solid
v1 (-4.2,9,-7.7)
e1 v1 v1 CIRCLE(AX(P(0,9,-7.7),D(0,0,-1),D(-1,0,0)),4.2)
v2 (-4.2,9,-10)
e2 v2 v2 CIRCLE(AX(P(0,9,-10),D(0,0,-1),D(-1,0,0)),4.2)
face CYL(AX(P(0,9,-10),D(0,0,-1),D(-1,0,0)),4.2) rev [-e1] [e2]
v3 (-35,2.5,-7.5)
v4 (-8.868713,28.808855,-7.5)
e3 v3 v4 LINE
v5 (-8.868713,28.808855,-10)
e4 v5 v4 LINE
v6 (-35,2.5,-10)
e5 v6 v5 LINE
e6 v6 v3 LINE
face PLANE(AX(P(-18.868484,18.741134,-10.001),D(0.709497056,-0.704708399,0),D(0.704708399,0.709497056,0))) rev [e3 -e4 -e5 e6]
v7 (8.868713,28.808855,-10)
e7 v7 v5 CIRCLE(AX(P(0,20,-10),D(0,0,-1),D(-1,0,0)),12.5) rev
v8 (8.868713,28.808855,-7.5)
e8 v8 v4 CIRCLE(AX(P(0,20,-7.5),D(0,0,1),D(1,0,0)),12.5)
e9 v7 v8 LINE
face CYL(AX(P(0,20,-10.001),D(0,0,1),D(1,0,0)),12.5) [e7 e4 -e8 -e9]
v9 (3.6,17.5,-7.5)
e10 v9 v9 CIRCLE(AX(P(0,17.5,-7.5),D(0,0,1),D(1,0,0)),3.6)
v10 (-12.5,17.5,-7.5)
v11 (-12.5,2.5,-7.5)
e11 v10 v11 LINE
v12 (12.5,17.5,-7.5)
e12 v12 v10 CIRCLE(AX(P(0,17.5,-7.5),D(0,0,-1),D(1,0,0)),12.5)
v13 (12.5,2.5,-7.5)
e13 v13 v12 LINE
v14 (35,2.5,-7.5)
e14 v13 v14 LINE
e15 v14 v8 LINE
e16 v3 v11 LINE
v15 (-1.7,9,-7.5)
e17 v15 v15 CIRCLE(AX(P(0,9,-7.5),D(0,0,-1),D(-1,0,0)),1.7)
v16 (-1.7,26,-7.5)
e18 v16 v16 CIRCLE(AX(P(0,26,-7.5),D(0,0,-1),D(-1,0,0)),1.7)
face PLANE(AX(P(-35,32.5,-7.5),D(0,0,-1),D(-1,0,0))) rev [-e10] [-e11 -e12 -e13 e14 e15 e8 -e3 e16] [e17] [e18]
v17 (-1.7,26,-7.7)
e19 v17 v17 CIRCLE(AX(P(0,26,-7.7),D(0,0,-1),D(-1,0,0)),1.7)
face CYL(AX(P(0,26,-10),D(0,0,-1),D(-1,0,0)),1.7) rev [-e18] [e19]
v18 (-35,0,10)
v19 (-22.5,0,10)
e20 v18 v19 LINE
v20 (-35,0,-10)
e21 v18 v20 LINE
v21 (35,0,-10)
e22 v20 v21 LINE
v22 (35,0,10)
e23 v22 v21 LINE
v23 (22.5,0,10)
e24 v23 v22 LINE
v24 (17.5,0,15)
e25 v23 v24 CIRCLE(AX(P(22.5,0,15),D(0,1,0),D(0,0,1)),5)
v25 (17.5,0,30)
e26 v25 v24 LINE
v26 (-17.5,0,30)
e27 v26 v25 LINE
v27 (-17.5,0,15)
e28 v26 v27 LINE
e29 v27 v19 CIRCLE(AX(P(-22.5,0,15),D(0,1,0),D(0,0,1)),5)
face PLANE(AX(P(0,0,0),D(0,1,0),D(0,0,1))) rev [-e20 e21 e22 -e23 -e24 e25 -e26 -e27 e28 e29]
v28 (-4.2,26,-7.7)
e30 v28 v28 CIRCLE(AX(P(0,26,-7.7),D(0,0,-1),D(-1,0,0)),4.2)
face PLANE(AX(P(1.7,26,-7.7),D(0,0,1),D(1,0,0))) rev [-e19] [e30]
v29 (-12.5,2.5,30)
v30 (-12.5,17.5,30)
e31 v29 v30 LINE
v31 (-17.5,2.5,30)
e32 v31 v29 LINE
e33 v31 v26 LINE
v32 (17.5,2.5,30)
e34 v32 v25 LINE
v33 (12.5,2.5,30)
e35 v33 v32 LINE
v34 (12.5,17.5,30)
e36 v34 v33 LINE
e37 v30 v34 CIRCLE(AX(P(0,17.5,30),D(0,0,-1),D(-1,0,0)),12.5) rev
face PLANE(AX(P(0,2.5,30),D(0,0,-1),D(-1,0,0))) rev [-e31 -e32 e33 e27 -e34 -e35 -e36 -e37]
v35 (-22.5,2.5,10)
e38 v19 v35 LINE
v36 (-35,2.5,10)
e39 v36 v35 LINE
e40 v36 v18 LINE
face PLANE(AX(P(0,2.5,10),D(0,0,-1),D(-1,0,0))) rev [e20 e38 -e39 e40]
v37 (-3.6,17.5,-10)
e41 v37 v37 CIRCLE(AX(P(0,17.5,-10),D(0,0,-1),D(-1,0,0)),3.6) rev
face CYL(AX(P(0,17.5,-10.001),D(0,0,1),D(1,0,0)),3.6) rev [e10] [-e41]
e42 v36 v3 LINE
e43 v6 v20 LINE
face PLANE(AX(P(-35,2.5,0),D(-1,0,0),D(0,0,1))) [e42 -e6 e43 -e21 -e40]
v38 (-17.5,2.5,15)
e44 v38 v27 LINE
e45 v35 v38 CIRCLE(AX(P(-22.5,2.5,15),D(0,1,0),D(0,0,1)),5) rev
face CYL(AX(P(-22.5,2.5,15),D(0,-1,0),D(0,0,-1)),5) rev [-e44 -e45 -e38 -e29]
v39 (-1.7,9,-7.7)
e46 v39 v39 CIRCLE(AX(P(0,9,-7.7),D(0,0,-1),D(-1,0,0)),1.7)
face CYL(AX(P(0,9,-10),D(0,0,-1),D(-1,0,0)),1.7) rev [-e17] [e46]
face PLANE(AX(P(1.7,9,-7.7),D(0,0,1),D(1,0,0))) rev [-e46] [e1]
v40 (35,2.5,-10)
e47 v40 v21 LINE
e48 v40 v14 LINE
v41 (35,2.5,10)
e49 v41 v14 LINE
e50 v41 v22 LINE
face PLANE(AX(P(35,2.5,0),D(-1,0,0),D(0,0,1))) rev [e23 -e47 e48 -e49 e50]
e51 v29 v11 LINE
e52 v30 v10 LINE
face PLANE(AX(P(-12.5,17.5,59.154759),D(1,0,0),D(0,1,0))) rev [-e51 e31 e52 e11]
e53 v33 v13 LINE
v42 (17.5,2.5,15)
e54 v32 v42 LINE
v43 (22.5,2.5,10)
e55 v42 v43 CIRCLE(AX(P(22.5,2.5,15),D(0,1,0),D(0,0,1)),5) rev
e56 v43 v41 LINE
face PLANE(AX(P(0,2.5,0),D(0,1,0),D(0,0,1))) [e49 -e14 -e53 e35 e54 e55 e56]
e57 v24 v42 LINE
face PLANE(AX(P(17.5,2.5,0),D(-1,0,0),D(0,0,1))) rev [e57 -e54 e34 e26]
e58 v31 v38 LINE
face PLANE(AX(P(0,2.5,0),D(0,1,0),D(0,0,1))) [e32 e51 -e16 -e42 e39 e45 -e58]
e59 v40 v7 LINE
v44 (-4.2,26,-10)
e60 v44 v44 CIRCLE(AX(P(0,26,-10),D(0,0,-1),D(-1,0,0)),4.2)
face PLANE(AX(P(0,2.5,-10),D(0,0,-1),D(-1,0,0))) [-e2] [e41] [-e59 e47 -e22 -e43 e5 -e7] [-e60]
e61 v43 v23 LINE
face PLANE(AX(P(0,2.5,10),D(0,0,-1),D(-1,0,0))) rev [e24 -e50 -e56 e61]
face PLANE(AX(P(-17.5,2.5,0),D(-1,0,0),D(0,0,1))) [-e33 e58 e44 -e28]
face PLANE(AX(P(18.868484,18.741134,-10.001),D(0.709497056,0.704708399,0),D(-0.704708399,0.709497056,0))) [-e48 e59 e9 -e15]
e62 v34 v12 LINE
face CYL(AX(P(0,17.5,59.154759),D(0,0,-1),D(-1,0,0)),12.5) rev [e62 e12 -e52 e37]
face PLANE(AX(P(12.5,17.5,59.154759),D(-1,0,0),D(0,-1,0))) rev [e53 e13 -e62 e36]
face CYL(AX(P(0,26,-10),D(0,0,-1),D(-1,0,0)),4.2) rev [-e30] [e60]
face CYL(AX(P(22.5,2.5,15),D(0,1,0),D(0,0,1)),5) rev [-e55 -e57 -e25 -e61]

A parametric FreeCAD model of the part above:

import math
import FreeCAD as App
import Part
import Sketcher
Q = App.Units.Quantity


def edges_at(feature, points):
    """Names of the edges that pass closest to the given points."""
    edges = feature.Shape.Edges
    near = lambda p: min(range(len(edges)), key=lambda i: edges[i].distToShape(Part.Vertex(*p))[0])
    return sorted({f"Edge{near(p) + 1}" for p in points})

doc = App.newDocument("Part")
body = doc.addObject("PartDesign::Body", "Body")

# Sketch on XZ plane
sketch1 = doc.addObject("Sketcher::SketchObject", "Sketch")
body.addObject(sketch1)
sketch1.AttachmentSupport = (doc.XZ_Plane, [""])
sketch1.MapMode = "FlatFace"
sketch1.addGeometry(Part.LineSegment(App.Vector(-18, 30, 0), App.Vector(18, 30, 0)), False)
sketch1.addGeometry(Part.LineSegment(App.Vector(18, 30, 0), App.Vector(18, 10, 0)), False)
sketch1.addGeometry(Part.LineSegment(App.Vector(18, 10, 0), App.Vector(35, 10, 0)), False)
sketch1.addGeometry(Part.LineSegment(App.Vector(35, 10, 0), App.Vector(35, -10, 0)), False)
sketch1.addGeometry(Part.LineSegment(App.Vector(35, -10, 0), App.Vector(-35, -10, 0)), False)
sketch1.addGeometry(Part.LineSegment(App.Vector(-35, -10, 0), App.Vector(-35, 10, 0)), False)
sketch1.addGeometry(Part.LineSegment(App.Vector(-35, 10, 0), App.Vector(-18, 10, 0)), False)
sketch1.addGeometry(Part.LineSegment(App.Vector(-18, 10, 0), App.Vector(-18, 30, 0)), False)
sketch1.addConstraint(Sketcher.Constraint("Coincident", 0, 2, 1, 1))
sketch1.addConstraint(Sketcher.Constraint("Coincident", 1, 2, 2, 1))
sketch1.addConstraint(Sketcher.Constraint("Coincident", 2, 2, 3, 1))
sketch1.addConstraint(Sketcher.Constraint("Coincident", 3, 2, 4, 1))
sketch1.addConstraint(Sketcher.Constraint("Coincident", 4, 2, 5, 1))
sketch1.addConstraint(Sketcher.Constraint("Coincident", 5, 2, 6, 1))
sketch1.addConstraint(Sketcher.Constraint("Coincident", 6, 2, 7, 1))
sketch1.addConstraint(Sketcher.Constraint("Coincident", 7, 2, 0, 1))
sketch1.addConstraint(Sketcher.Constraint("Horizontal", 0))
sketch1.addConstraint(Sketcher.Constraint("Vertical", 1))
sketch1.addConstraint(Sketcher.Constraint("Horizontal", 2))
sketch1.addConstraint(Sketcher.Constraint("Vertical", 3))
sketch1.addConstraint(Sketcher.Constraint("Horizontal", 4))
sketch1.addConstraint(Sketcher.Constraint("Vertical", 5))
sketch1.addConstraint(Sketcher.Constraint("Horizontal", 6))
sketch1.addConstraint(Sketcher.Constraint("Vertical", 7))
sketch1.addConstraint(Sketcher.Constraint("Symmetric", 2, 2, 4, 2, -1, 1))
sketch1.addConstraint(Sketcher.Constraint("Symmetric", 1, 2, 6, 2, -2))
sketch1.addConstraint(Sketcher.Constraint("Equal", 1, 3))
sketch1.addConstraint(Sketcher.Constraint("DistanceX", 0, 1, 0, 2, Q("35 mm")))
sketch1.addConstraint(Sketcher.Constraint("DistanceX", 4, 2, 4, 1, Q("70 mm")))
sketch1.addConstraint(Sketcher.Constraint("DistanceY", 1, 2, 1, 1, Q("20 mm")))
pad1 = doc.addObject("PartDesign::Pad", "Pad")
body.addObject(pad1)
pad1.Profile = sketch1
pad1.Length = 2.5
pad1.Reversed = True
doc.recompute()

fillet = doc.addObject("PartDesign::Fillet", "Fillet")
body.addObject(fillet)
fillet.Base = (pad1, edges_at(pad1, [(-17.5, 1.25, 10), (17.5, 1.25, 10)]))
fillet.Radius = 5

# Sketch on XZ plane
sketch2 = doc.addObject("Sketcher::SketchObject", "Sketch001")
body.addObject(sketch2)
sketch2.AttachmentSupport = (doc.XZ_Plane, [""])
sketch2.MapMode = "FlatFace"
sketch2.AttachmentOffset = App.Placement(App.Vector(0, 0, -2.5), App.Rotation())
sketch2.addGeometry(Part.LineSegment(App.Vector(-35, -10, 0), App.Vector(-35, -7.5, 0)), False)
sketch2.addGeometry(Part.LineSegment(App.Vector(-35, -7.5, 0), App.Vector(35, -7.5, 0)), False)
sketch2.addGeometry(Part.LineSegment(App.Vector(35, -7.5, 0), App.Vector(35, -10, 0)), False)
sketch2.addGeometry(Part.LineSegment(App.Vector(35, -10, 0), App.Vector(-35, -10, 0)), False)
sketch2.addConstraint(Sketcher.Constraint("Coincident", 0, 2, 1, 1))
sketch2.addConstraint(Sketcher.Constraint("Coincident", 1, 2, 2, 1))
sketch2.addConstraint(Sketcher.Constraint("Coincident", 2, 2, 3, 1))
sketch2.addConstraint(Sketcher.Constraint("Coincident", 3, 2, 0, 1))
sketch2.addConstraint(Sketcher.Constraint("Vertical", 0))
sketch2.addConstraint(Sketcher.Constraint("Horizontal", 1))
sketch2.addConstraint(Sketcher.Constraint("Vertical", 2))
sketch2.addConstraint(Sketcher.Constraint("Horizontal", 3))
sketch2.addConstraint(Sketcher.Constraint("DistanceX", 1, 1, 1, 2, Q("70 mm")))
sketch2.addConstraint(Sketcher.Constraint("DistanceY", 0, 1, 0, 2, Q("2.5 mm")))
sketch2.addConstraint(Sketcher.Constraint("DistanceX", 0, 2, -1, 1, Q("35 mm")))
sketch2.addConstraint(Sketcher.Constraint("DistanceY", 2, 2, -1, 1, Q("10 mm")))
pad2 = doc.addObject("PartDesign::Pad", "Pad001")
body.addObject(pad2)
pad2.Profile = sketch2
pad2.Length = 30
pad2.Reversed = True

# Sketch on XY plane
sketch3 = doc.addObject("Sketcher::SketchObject", "Sketch002")
body.addObject(sketch3)
sketch3.AttachmentSupport = (doc.XY_Plane, [""])
sketch3.MapMode = "FlatFace"
sketch3.AttachmentOffset = App.Placement(App.Vector(0, 0, -7.5), App.Rotation())
sketch3.addGeometry(Part.LineSegment(App.Vector(-35, 32, 0), App.Vector(-35, 2, 0)), False)
sketch3.addGeometry(Part.LineSegment(App.Vector(-35, 2, 0), App.Vector(-9, 29, 0)), False)
sketch3.addGeometry(Part.ArcOfCircle(Part.Circle(App.Vector(0, 20, 0), App.Vector(0, 0, 1), 13), math.radians(90), math.radians(135)), False)
sketch3.addGeometry(Part.LineSegment(App.Vector(0, 32, 0), App.Vector(-35, 32, 0)), False)
sketch3.addConstraint(Sketcher.Constraint("Coincident", 0, 2, 1, 1))
sketch3.addConstraint(Sketcher.Constraint("Tangent", 1, 2, 2, 2))
sketch3.addConstraint(Sketcher.Constraint("Tangent", 2, 1, 3, 1))
sketch3.addConstraint(Sketcher.Constraint("Coincident", 3, 2, 0, 1))
sketch3.addConstraint(Sketcher.Constraint("Vertical", 0))
sketch3.addConstraint(Sketcher.Constraint("Horizontal", 3))
sketch3.addConstraint(Sketcher.Constraint("PointOnObject", 2, 3, -2))
sketch3.addConstraint(Sketcher.Constraint("Radius", 2, Q("12.5 mm")))
sketch3.addConstraint(Sketcher.Constraint("DistanceX", 3, 2, 3, 1, Q("35 mm")))
sketch3.addConstraint(Sketcher.Constraint("DistanceY", 0, 2, 0, 1, Q("30 mm")))
sketch3.addConstraint(Sketcher.Constraint("DistanceY", -1, 1, 2, 3, Q("20 mm")))
pocket1 = doc.addObject("PartDesign::Pocket", "Pocket")
body.addObject(pocket1)
pocket1.Profile = sketch3
pocket1.Type = "UpToFirst"

# Sketch on XY plane
sketch4 = doc.addObject("Sketcher::SketchObject", "Sketch003")
body.addObject(sketch4)
sketch4.AttachmentSupport = (doc.XY_Plane, [""])
sketch4.MapMode = "FlatFace"
sketch4.AttachmentOffset = App.Placement(App.Vector(0, 0, -7.5), App.Rotation())
sketch4.addGeometry(Part.LineSegment(App.Vector(35, 32, 0), App.Vector(0, 32, 0)), False)
sketch4.addGeometry(Part.ArcOfCircle(Part.Circle(App.Vector(0, 20, 0), App.Vector(0, 0, 1), 13), math.radians(45), math.radians(90)), False)
sketch4.addGeometry(Part.LineSegment(App.Vector(9, 29, 0), App.Vector(35, 2, 0)), False)
sketch4.addGeometry(Part.LineSegment(App.Vector(35, 2, 0), App.Vector(35, 32, 0)), False)
sketch4.addConstraint(Sketcher.Constraint("Tangent", 0, 2, 1, 2))
sketch4.addConstraint(Sketcher.Constraint("Tangent", 1, 1, 2, 1))
sketch4.addConstraint(Sketcher.Constraint("Coincident", 2, 2, 3, 1))
sketch4.addConstraint(Sketcher.Constraint("Coincident", 3, 2, 0, 1))
sketch4.addConstraint(Sketcher.Constraint("Horizontal", 0))
sketch4.addConstraint(Sketcher.Constraint("Vertical", 3))
sketch4.addConstraint(Sketcher.Constraint("PointOnObject", 1, 3, -2))
sketch4.addConstraint(Sketcher.Constraint("Radius", 1, Q("12.5 mm")))
sketch4.addConstraint(Sketcher.Constraint("DistanceX", 0, 2, 0, 1, Q("35 mm")))
sketch4.addConstraint(Sketcher.Constraint("DistanceY", 3, 1, 3, 2, Q("30 mm")))
sketch4.addConstraint(Sketcher.Constraint("DistanceY", -1, 1, 1, 3, Q("20 mm")))
pocket2 = doc.addObject("PartDesign::Pocket", "Pocket001")
body.addObject(pocket2)
pocket2.Profile = sketch4
pocket2.Type = "UpToFirst"

# Sketch on XY plane
sketch5 = doc.addObject("Sketcher::SketchObject", "Sketch004")
body.addObject(sketch5)
sketch5.AttachmentSupport = (doc.XY_Plane, [""])
sketch5.MapMode = "FlatFace"
sketch5.AttachmentOffset = App.Placement(App.Vector(0, 0, -7.5), App.Rotation())
sketch5.addGeometry(Part.LineSegment(App.Vector(12, 2, 0), App.Vector(12, 18, 0)), False)
sketch5.addGeometry(Part.ArcOfCircle(Part.Circle(App.Vector(0, 18, 0), App.Vector(0, 0, 1), 12), math.radians(180), math.radians(360)), False)
sketch5.addGeometry(Part.LineSegment(App.Vector(-12, 18, 0), App.Vector(-12, 2, 0)), False)
sketch5.addGeometry(Part.LineSegment(App.Vector(-12, 2, 0), App.Vector(12, 2, 0)), False)
sketch5.addConstraint(Sketcher.Constraint("Tangent", 0, 2, 1, 2))
sketch5.addConstraint(Sketcher.Constraint("Tangent", 1, 1, 2, 1))
sketch5.addConstraint(Sketcher.Constraint("Coincident", 2, 2, 3, 1))
sketch5.addConstraint(Sketcher.Constraint("Coincident", 3, 2, 0, 1))
sketch5.addConstraint(Sketcher.Constraint("Vertical", 0))
sketch5.addConstraint(Sketcher.Constraint("Vertical", 2))
sketch5.addConstraint(Sketcher.Constraint("Horizontal", 3))
sketch5.addConstraint(Sketcher.Constraint("PointOnObject", 1, 3, -2))
sketch5.addConstraint(Sketcher.Constraint("Radius", 1, Q("12.5 mm")))
sketch5.addConstraint(Sketcher.Constraint("DistanceY", 0, 1, 0, 2, Q("15 mm")))
sketch5.addConstraint(Sketcher.Constraint("DistanceY", -1, 1, 1, 3, Q("17.5 mm")))
pad3 = doc.addObject("PartDesign::Pad", "Pad002")
body.addObject(pad3)
pad3.Profile = sketch5
pad3.Length = 37.5

# Sketch on XY plane
sketch6 = doc.addObject("Sketcher::SketchObject", "Sketch005")
body.addObject(sketch6)
sketch6.AttachmentSupport = (doc.XY_Plane, [""])
sketch6.MapMode = "FlatFace"
sketch6.AttachmentOffset = App.Placement(App.Vector(0, 0, -7.5), App.Rotation())
sketch6.addGeometry(Part.Circle(App.Vector(0, 17.5, 0), App.Vector(0, 0, 1), 3.6), False)
sketch6.addConstraint(Sketcher.Constraint("PointOnObject", 0, 3, -2))
sketch6.addConstraint(Sketcher.Constraint("Diameter", 0, Q("7.2 mm")))
sketch6.addConstraint(Sketcher.Constraint("DistanceY", -1, 1, 0, 3, Q("17.5 mm")))
pocket3 = doc.addObject("PartDesign::Pocket", "Pocket002")
body.addObject(pocket3)
pocket3.Profile = sketch6
pocket3.Type = "UpToFirst"

# Sketch on XY plane
sketch7 = doc.addObject("Sketcher::SketchObject", "Sketch006")
body.addObject(sketch7)
sketch7.AttachmentSupport = (doc.XY_Plane, [""])
sketch7.MapMode = "FlatFace"
sketch7.AttachmentOffset = App.Placement(App.Vector(0, 0, -10), App.Rotation())
sketch7.addGeometry(Part.Circle(App.Vector(0, 26, 0), App.Vector(0, 0, 1), 1.7), False)
sketch7.addGeometry(Part.Circle(App.Vector(0, 9, 0), App.Vector(0, 0, 1), 1.7), False)
sketch7.addConstraint(Sketcher.Constraint("Equal", 0, 1))
sketch7.addConstraint(Sketcher.Constraint("PointOnObject", 0, 3, -2))
sketch7.addConstraint(Sketcher.Constraint("PointOnObject", 1, 3, -2))
sketch7.addConstraint(Sketcher.Constraint("Diameter", 0, Q("3.4 mm")))
sketch7.addConstraint(Sketcher.Constraint("DistanceY", -1, 1, 0, 3, Q("26 mm")))
sketch7.addConstraint(Sketcher.Constraint("DistanceY", -1, 1, 1, 3, Q("9 mm")))
doc.recompute()
hole = doc.addObject("PartDesign::Hole", "Hole")
body.addObject(hole)
hole.Profile = sketch7
hole.ThreadType = "None"
hole.Diameter = 3.4
hole.DepthType = "ThroughAll"
hole.HoleCutType = "Counterbore"
hole.HoleCutDiameter = 8.4
hole.HoleCutDepth = 2.3
hole.Reversed = True

doc.recompute()
